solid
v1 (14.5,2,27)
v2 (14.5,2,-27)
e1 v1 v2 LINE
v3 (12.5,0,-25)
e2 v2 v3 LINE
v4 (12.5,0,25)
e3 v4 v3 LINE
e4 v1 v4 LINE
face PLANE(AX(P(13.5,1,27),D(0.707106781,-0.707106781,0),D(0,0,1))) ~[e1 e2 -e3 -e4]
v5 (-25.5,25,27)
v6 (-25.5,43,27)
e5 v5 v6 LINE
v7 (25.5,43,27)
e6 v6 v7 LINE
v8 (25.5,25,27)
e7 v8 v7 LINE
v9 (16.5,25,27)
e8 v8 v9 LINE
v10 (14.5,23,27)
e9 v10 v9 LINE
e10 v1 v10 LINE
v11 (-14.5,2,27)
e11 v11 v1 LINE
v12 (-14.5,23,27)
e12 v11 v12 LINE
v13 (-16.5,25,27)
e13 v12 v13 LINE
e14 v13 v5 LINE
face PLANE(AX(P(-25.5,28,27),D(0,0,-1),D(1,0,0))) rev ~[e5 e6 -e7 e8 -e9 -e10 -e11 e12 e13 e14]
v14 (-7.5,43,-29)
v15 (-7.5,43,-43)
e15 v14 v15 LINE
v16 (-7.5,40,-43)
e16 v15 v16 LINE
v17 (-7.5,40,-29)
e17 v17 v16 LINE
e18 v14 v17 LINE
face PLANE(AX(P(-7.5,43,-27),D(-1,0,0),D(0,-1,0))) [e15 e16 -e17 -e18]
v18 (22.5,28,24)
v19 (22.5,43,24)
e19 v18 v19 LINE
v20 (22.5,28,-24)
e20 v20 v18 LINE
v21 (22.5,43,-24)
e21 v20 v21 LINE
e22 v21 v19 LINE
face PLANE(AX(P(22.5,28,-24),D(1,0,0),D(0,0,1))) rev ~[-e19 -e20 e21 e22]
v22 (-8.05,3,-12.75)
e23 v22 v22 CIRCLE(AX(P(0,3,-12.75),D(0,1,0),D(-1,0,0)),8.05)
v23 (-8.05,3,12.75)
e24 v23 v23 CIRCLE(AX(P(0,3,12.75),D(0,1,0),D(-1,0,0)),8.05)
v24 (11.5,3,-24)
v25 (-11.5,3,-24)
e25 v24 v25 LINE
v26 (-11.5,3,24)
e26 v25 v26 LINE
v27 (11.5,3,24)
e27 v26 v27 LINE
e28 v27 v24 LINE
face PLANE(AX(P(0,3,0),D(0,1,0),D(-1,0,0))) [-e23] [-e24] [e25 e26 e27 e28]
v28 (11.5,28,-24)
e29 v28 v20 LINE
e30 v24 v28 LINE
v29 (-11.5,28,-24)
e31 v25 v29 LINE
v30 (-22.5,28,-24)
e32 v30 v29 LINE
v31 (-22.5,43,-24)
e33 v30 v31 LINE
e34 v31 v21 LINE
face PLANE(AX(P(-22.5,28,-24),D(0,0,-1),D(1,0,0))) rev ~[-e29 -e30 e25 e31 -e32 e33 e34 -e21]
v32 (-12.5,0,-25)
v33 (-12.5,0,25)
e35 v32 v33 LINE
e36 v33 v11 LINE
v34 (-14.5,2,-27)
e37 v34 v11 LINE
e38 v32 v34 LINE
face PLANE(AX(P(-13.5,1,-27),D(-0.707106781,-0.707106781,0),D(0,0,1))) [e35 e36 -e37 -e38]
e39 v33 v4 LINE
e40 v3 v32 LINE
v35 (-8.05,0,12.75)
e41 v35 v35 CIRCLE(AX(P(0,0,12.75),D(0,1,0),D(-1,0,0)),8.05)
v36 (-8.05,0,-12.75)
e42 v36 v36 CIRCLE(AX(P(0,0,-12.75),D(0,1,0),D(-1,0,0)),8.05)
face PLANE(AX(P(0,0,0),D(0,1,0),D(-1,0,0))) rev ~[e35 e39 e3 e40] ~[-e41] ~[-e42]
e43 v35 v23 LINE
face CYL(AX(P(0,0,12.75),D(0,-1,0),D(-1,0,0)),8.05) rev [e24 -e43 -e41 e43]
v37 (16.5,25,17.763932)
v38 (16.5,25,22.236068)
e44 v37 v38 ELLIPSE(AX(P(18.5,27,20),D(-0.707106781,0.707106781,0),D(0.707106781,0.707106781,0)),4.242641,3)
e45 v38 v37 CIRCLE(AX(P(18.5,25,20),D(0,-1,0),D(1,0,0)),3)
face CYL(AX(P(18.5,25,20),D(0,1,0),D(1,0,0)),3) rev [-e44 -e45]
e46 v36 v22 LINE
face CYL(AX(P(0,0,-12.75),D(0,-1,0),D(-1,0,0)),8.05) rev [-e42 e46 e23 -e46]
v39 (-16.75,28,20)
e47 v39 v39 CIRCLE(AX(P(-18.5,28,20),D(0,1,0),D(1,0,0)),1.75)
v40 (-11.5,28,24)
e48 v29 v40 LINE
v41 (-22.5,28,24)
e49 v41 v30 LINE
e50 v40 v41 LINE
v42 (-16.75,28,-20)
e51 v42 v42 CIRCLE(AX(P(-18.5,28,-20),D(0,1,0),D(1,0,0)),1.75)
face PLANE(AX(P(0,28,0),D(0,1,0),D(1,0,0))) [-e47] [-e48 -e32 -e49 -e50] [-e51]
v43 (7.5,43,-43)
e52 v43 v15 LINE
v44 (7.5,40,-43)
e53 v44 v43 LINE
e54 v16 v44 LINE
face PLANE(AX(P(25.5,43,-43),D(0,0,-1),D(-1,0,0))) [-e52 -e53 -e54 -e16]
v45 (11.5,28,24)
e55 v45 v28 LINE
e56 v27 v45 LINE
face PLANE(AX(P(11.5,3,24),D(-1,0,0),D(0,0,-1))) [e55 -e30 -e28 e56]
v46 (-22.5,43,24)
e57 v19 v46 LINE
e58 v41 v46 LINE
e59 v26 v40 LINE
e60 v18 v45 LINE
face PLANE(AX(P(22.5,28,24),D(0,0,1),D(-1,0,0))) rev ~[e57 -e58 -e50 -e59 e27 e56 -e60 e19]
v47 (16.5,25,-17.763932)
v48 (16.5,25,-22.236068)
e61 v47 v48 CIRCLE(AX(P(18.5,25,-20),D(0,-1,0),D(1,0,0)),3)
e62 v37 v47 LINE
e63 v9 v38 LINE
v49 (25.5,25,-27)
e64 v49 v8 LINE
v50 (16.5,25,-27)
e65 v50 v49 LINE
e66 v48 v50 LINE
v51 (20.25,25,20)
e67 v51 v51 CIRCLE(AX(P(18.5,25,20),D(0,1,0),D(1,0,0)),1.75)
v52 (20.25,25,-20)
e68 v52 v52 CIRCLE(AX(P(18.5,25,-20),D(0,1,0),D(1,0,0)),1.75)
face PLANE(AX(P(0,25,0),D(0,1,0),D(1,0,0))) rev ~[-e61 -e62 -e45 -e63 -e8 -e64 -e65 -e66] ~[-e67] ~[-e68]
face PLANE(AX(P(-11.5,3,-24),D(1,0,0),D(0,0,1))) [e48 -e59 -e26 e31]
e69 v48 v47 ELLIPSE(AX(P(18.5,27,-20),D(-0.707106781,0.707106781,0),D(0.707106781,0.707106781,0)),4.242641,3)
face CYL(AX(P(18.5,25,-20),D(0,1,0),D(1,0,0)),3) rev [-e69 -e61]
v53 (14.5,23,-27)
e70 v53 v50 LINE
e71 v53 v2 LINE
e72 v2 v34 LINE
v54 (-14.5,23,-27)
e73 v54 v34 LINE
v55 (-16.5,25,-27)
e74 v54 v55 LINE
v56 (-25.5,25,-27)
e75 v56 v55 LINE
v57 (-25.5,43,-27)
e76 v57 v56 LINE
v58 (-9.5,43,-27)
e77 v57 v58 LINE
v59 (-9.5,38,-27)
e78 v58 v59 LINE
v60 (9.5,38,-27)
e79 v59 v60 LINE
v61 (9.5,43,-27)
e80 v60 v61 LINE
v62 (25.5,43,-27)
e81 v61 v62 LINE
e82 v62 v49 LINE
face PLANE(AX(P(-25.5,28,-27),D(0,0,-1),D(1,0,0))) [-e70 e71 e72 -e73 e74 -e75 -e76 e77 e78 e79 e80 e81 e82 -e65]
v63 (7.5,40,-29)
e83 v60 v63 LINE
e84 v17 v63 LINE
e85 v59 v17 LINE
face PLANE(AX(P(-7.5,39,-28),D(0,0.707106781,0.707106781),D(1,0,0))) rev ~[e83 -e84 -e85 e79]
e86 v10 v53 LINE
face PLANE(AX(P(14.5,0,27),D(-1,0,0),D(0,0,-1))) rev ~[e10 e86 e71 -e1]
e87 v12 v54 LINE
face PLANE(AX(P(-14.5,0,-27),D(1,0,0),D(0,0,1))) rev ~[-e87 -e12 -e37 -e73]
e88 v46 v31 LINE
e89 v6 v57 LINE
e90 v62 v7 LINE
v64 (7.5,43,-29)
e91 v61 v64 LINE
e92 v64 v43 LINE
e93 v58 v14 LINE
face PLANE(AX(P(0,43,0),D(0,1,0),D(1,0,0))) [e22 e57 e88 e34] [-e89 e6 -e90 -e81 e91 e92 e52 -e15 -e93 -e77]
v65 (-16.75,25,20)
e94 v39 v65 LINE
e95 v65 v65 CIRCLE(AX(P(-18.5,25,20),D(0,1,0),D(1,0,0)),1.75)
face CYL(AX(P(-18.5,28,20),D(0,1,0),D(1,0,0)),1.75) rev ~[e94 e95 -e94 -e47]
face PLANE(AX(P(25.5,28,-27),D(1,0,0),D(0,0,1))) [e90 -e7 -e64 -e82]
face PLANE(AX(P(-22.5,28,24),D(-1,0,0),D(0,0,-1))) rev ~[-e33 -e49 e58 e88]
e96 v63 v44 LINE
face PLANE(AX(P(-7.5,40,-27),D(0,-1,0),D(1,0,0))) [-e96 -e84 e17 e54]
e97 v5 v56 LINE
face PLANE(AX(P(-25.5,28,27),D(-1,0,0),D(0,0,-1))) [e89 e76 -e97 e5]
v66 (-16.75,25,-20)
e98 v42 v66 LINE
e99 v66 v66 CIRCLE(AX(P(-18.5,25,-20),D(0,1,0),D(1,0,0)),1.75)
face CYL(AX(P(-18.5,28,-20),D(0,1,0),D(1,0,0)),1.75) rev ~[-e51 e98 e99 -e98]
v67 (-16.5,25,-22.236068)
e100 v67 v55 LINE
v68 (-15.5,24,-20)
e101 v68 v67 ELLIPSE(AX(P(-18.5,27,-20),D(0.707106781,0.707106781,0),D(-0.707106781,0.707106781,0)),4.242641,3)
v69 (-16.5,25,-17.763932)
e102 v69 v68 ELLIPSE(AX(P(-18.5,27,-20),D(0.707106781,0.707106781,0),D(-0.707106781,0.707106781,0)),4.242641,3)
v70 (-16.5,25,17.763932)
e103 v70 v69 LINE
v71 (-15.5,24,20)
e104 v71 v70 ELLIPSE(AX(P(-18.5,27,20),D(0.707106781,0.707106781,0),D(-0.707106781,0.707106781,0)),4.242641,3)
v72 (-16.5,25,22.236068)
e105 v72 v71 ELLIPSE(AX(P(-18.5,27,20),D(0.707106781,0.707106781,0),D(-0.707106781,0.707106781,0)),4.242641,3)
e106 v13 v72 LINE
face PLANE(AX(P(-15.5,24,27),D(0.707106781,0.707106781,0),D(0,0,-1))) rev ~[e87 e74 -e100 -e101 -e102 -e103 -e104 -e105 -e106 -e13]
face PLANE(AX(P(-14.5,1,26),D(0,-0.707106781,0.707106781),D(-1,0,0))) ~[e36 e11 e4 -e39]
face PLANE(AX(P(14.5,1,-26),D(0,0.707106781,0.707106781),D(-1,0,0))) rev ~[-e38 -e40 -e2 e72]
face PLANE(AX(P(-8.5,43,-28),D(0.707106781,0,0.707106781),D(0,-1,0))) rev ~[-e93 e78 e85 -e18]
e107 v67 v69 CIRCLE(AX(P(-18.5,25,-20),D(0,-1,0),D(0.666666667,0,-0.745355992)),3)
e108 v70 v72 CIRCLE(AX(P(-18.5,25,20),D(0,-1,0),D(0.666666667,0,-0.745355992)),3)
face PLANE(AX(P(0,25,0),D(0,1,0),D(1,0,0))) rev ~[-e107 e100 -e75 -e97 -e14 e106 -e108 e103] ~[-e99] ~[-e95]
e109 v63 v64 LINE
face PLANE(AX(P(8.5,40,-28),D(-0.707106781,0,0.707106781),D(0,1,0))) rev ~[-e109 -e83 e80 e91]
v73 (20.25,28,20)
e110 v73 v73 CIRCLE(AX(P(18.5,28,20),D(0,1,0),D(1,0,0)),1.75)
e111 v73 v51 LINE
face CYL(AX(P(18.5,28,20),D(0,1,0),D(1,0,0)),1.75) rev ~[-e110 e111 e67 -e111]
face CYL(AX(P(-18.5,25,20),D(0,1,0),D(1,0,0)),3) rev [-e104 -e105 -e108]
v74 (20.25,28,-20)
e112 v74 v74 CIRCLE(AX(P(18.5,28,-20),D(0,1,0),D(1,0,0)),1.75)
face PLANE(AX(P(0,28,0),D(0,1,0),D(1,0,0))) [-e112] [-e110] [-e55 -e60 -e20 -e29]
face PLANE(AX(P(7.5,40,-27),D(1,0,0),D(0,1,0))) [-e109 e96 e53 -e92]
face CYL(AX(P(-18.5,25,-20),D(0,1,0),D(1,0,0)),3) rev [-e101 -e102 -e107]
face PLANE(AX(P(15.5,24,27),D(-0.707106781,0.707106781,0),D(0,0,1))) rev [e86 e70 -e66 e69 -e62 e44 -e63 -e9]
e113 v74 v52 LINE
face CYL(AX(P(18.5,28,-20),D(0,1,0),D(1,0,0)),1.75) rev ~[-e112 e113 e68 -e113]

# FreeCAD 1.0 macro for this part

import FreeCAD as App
import Part
import Sketcher
from FreeCAD import Vector
Q = App.Units.Quantity


def edges_at(feature, points):
    """Names of the edges that pass closest to the given points."""
    edges = feature.Shape.Edges
    near = lambda p: min(range(len(edges)), key=lambda i: edges[i].distToShape(Part.Vertex(*p))[0])
    return sorted({f"Edge{near(p) + 1}" for p in points})

doc = App.newDocument("Part")
body = doc.addObject("PartDesign::Body", "Body")

# Sketch on XZ plane
sketch1 = doc.addObject("Sketcher::SketchObject", "Sketch")
body.addObject(sketch1)
sketch1.AttachmentSupport = (doc.XZ_Plane, [""])
sketch1.MapMode = "FlatFace"
sketch1.addGeometry(Part.LineSegment(Vector(-14, -27, 0), Vector(-14, 27, 0)), False)
sketch1.addGeometry(Part.LineSegment(Vector(-14, 27, 0), Vector(14, 27, 0)), False)
sketch1.addGeometry(Part.LineSegment(Vector(14, 27, 0), Vector(14, -27, 0)), False)
sketch1.addGeometry(Part.LineSegment(Vector(14, -27, 0), Vector(-14, -27, 0)), False)
sketch1.addGeometry(Part.Circle(Vector(0, -13, 0), Vector(0, 0, 1), 8), False)
sketch1.addGeometry(Part.Circle(Vector(0, 13, 0), Vector(0, 0, 1), 8), False)
sketch1.addConstraint(Sketcher.Constraint("Coincident", 0, 2, 1, 1))
sketch1.addConstraint(Sketcher.Constraint("Coincident", 1, 2, 2, 1))
sketch1.addConstraint(Sketcher.Constraint("Coincident", 2, 2, 3, 1))
sketch1.addConstraint(Sketcher.Constraint("Coincident", 3, 2, 0, 1))
sketch1.addConstraint(Sketcher.Constraint("Vertical", 0))
sketch1.addConstraint(Sketcher.Constraint("Horizontal", 1))
sketch1.addConstraint(Sketcher.Constraint("Vertical", 2))
sketch1.addConstraint(Sketcher.Constraint("Horizontal", 3))
sketch1.addConstraint(Sketcher.Constraint("Equal", 4, 5))
sketch1.addConstraint(Sketcher.Constraint("Symmetric", 4, 3, 5, 3, -1, 1))
sketch1.addConstraint(Sketcher.Constraint("Symmetric", 0, 2, 2, 2, -1, 1))
sketch1.addConstraint(Sketcher.Constraint("PointOnObject", 4, 3, -2))
sketch1.addConstraint(Sketcher.Constraint("Diameter", 4, Q("16.1 mm")))
sketch1.addConstraint(Sketcher.Constraint("DistanceX", 1, 1, 1, 2, Q("29 mm")))
sketch1.addConstraint(Sketcher.Constraint("DistanceY", 0, 1, 0, 2, Q("54 mm")))
sketch1.addConstraint(Sketcher.Constraint("DistanceY", 4, 3, 5, 3, Q("25.5 mm")))
pad1 = doc.addObject("PartDesign::Pad", "Pad")
body.addObject(pad1)
pad1.Profile = sketch1
pad1.Length = 3
pad1.Reversed = True

# Sketch on XZ plane
sketch2 = doc.addObject("Sketcher::SketchObject", "Sketch001")
body.addObject(sketch2)
sketch2.AttachmentSupport = (doc.XZ_Plane, [""])
sketch2.MapMode = "FlatFace"
sketch2.AttachmentOffset = App.Placement(Vector(0, 0, -3), App.Rotation())
sketch2.addGeometry(Part.LineSegment(Vector(-14, 27, 0), Vector(14, 27, 0)), False)
sketch2.addGeometry(Part.LineSegment(Vector(14, 27, 0), Vector(14, -27, 0)), False)
sketch2.addGeometry(Part.LineSegment(Vector(14, -27, 0), Vector(-14, -27, 0)), False)
sketch2.addGeometry(Part.LineSegment(Vector(-14, -27, 0), Vector(-14, 27, 0)), False)
sketch2.addGeometry(Part.LineSegment(Vector(12, 24, 0), Vector(-12, 24, 0)), False)
sketch2.addGeometry(Part.LineSegment(Vector(-12, 24, 0), Vector(-12, -24, 0)), False)
sketch2.addGeometry(Part.LineSegment(Vector(-12, -24, 0), Vector(12, -24, 0)), False)
sketch2.addGeometry(Part.LineSegment(Vector(12, -24, 0), Vector(12, 24, 0)), False)
sketch2.addConstraint(Sketcher.Constraint("Coincident", 0, 2, 1, 1))
sketch2.addConstraint(Sketcher.Constraint("Coincident", 1, 2, 2, 1))
sketch2.addConstraint(Sketcher.Constraint("Coincident", 2, 2, 3, 1))
sketch2.addConstraint(Sketcher.Constraint("Coincident", 3, 2, 0, 1))
sketch2.addConstraint(Sketcher.Constraint("Coincident", 4, 2, 5, 1))
sketch2.addConstraint(Sketcher.Constraint("Coincident", 5, 2, 6, 1))
sketch2.addConstraint(Sketcher.Constraint("Coincident", 6, 2, 7, 1))
sketch2.addConstraint(Sketcher.Constraint("Coincident", 7, 2, 4, 1))
sketch2.addConstraint(Sketcher.Constraint("Horizontal", 0))
sketch2.addConstraint(Sketcher.Constraint("Vertical", 1))
sketch2.addConstraint(Sketcher.Constraint("Horizontal", 2))
sketch2.addConstraint(Sketcher.Constraint("Vertical", 3))
sketch2.addConstraint(Sketcher.Constraint("Horizontal", 4))
sketch2.addConstraint(Sketcher.Constraint("Vertical", 5))
sketch2.addConstraint(Sketcher.Constraint("Horizontal", 6))
sketch2.addConstraint(Sketcher.Constraint("Vertical", 7))
sketch2.addConstraint(Sketcher.Constraint("Symmetric", 0, 2, 2, 2, -1, 1))
sketch2.addConstraint(Sketcher.Constraint("Symmetric", 4, 2, 6, 2, -1, 1))
sketch2.addConstraint(Sketcher.Constraint("DistanceX", 4, 2, 4, 1, Q("23 mm")))
sketch2.addConstraint(Sketcher.Constraint("DistanceY", 5, 2, 5, 1, Q("48 mm")))
sketch2.addConstraint(Sketcher.Constraint("DistanceX", 0, 1, 0, 2, Q("29 mm")))
sketch2.addConstraint(Sketcher.Constraint("DistanceY", 1, 2, 1, 1, Q("54 mm")))
pad2 = doc.addObject("PartDesign::Pad", "Pad001")
body.addObject(pad2)
pad2.Profile = sketch2
pad2.Length = 25
pad2.Reversed = True

# Sketch on XZ plane
sketch3 = doc.addObject("Sketcher::SketchObject", "Sketch002")
body.addObject(sketch3)
sketch3.AttachmentSupport = (doc.XZ_Plane, [""])
sketch3.MapMode = "FlatFace"
sketch3.AttachmentOffset = App.Placement(Vector(0, 0, -28), App.Rotation())
sketch3.addGeometry(Part.LineSegment(Vector(-14, -27, 0), Vector(-26, -27, 0)), False)
sketch3.addGeometry(Part.LineSegment(Vector(-26, -27, 0), Vector(-26, 27, 0)), False)
sketch3.addGeometry(Part.LineSegment(Vector(-26, 27, 0), Vector(-14, 27, 0)), False)
sketch3.addGeometry(Part.LineSegment(Vector(-14, 27, 0), Vector(-14, -27, 0)), False)
sketch3.addGeometry(Part.LineSegment(Vector(26, -27, 0), Vector(14, -27, 0)), False)
sketch3.addGeometry(Part.LineSegment(Vector(14, -27, 0), Vector(14, 27, 0)), False)
sketch3.addGeometry(Part.LineSegment(Vector(14, 27, 0), Vector(26, 27, 0)), False)
sketch3.addGeometry(Part.LineSegment(Vector(26, 27, 0), Vector(26, -27, 0)), False)
sketch3.addConstraint(Sketcher.Constraint("Coincident", 0, 2, 1, 1))
sketch3.addConstraint(Sketcher.Constraint("Coincident", 1, 2, 2, 1))
sketch3.addConstraint(Sketcher.Constraint("Coincident", 2, 2, 3, 1))
sketch3.addConstraint(Sketcher.Constraint("Coincident", 3, 2, 0, 1))
sketch3.addConstraint(Sketcher.Constraint("Coincident", 4, 2, 5, 1))
sketch3.addConstraint(Sketcher.Constraint("Coincident", 5, 2, 6, 1))
sketch3.addConstraint(Sketcher.Constraint("Coincident", 6, 2, 7, 1))
sketch3.addConstraint(Sketcher.Constraint("Coincident", 7, 2, 4, 1))
sketch3.addConstraint(Sketcher.Constraint("Horizontal", 0))
sketch3.addConstraint(Sketcher.Constraint("Vertical", 1))
sketch3.addConstraint(Sketcher.Constraint("Horizontal", 2))
sketch3.addConstraint(Sketcher.Constraint("Vertical", 3))
sketch3.addConstraint(Sketcher.Constraint("Horizontal", 4))
sketch3.addConstraint(Sketcher.Constraint("Vertical", 5))
sketch3.addConstraint(Sketcher.Constraint("Horizontal", 6))
sketch3.addConstraint(Sketcher.Constraint("Vertical", 7))
sketch3.addConstraint(Sketcher.Constraint("Symmetric", 2, 2, 4, 2, -1, 1))
sketch3.addConstraint(Sketcher.Constraint("Symmetric", 0, 2, 6, 2, -1, 1))
sketch3.addConstraint(Sketcher.Constraint("Horizontal", 3, 2, 4, 2))
sketch3.addConstraint(Sketcher.Constraint("DistanceX", 1, 2, 6, 2, Q("51 mm")))
sketch3.addConstraint(Sketcher.Constraint("DistanceX", 0, 2, 0, 1, Q("11 mm")))
sketch3.addConstraint(Sketcher.Constraint("DistanceY", 1, 1, 1, 2, Q("54 mm")))
pad3 = doc.addObject("PartDesign::Pad", "Pad002")
body.addObject(pad3)
pad3.Profile = sketch3
pad3.Length = 3

# Sketch on XZ plane
sketch4 = doc.addObject("Sketcher::SketchObject", "Sketch003")
body.addObject(sketch4)
sketch4.AttachmentSupport = (doc.XZ_Plane, [""])
sketch4.MapMode = "FlatFace"
sketch4.AttachmentOffset = App.Placement(Vector(0, 0, -28), App.Rotation())
sketch4.addGeometry(Part.LineSegment(Vector(-26, -27, 0), Vector(-26, 27, 0)), False)
sketch4.addGeometry(Part.LineSegment(Vector(-26, 27, 0), Vector(26, 27, 0)), False)
sketch4.addGeometry(Part.LineSegment(Vector(26, 27, 0), Vector(26, -27, 0)), False)
sketch4.addGeometry(Part.LineSegment(Vector(26, -27, 0), Vector(-26, -27, 0)), False)
sketch4.addGeometry(Part.LineSegment(Vector(-22, 24, 0), Vector(-22, -24, 0)), False)
sketch4.addGeometry(Part.LineSegment(Vector(-22, -24, 0), Vector(22, -24, 0)), False)
sketch4.addGeometry(Part.LineSegment(Vector(22, -24, 0), Vector(22, 24, 0)), False)
sketch4.addGeometry(Part.LineSegment(Vector(22, 24, 0), Vector(-22, 24, 0)), False)
sketch4.addConstraint(Sketcher.Constraint("Coincident", 0, 2, 1, 1))
sketch4.addConstraint(Sketcher.Constraint("Coincident", 1, 2, 2, 1))
sketch4.addConstraint(Sketcher.Constraint("Coincident", 2, 2, 3, 1))
sketch4.addConstraint(Sketcher.Constraint("Coincident", 3, 2, 0, 1))
sketch4.addConstraint(Sketcher.Constraint("Coincident", 4, 2, 5, 1))
sketch4.addConstraint(Sketcher.Constraint("Coincident", 5, 2, 6, 1))
sketch4.addConstraint(Sketcher.Constraint("Coincident", 6, 2, 7, 1))
sketch4.addConstraint(Sketcher.Constraint("Coincident", 7, 2, 4, 1))
sketch4.addConstraint(Sketcher.Constraint("Vertical", 0))
sketch4.addConstraint(Sketcher.Constraint("Horizontal", 1))
sketch4.addConstraint(Sketcher.Constraint("Vertical", 2))
sketch4.addConstraint(Sketcher.Constraint("Horizontal", 3))
sketch4.addConstraint(Sketcher.Constraint("Vertical", 4))
sketch4.addConstraint(Sketcher.Constraint("Horizontal", 5))
sketch4.addConstraint(Sketcher.Constraint("Vertical", 6))
sketch4.addConstraint(Sketcher.Constraint("Horizontal", 7))
sketch4.addConstraint(Sketcher.Constraint("Symmetric", 0, 2, 2, 2, -1, 1))
sketch4.addConstraint(Sketcher.Constraint("Symmetric", 4, 2, 6, 2, -1, 1))
sketch4.addConstraint(Sketcher.Constraint("DistanceX", 5, 1, 5, 2, Q("45 mm")))
sketch4.addConstraint(Sketcher.Constraint("DistanceY", 4, 2, 4, 1, Q("48 mm")))
sketch4.addConstraint(Sketcher.Constraint("DistanceX", 4, 2, 2, 2, Q("48 mm")))
sketch4.addConstraint(Sketcher.Constraint("DistanceY", 0, 1, 0, 2, Q("54 mm")))
pad4 = doc.addObject("PartDesign::Pad", "Pad003")
body.addObject(pad4)
pad4.Profile = sketch4
pad4.Length = 15
pad4.Reversed = True

# Sketch on XZ plane
sketch5 = doc.addObject("Sketcher::SketchObject", "Sketch004")
body.addObject(sketch5)
sketch5.AttachmentSupport = (doc.XZ_Plane, [""])
sketch5.MapMode = "FlatFace"
sketch5.AttachmentOffset = App.Placement(Vector(0, 0, -28), App.Rotation())
sketch5.addGeometry(Part.Circle(Vector(18.5, -20, 0), Vector(0, 0, 1), 1.8), False)
sketch5.addGeometry(Part.Circle(Vector(18.5, 20, 0), Vector(0, 0, 1), 1.8), False)
sketch5.addGeometry(Part.Circle(Vector(-18.5, -20, 0), Vector(0, 0, 1), 1.8), False)
sketch5.addGeometry(Part.Circle(Vector(-18.5, 20, 0), Vector(0, 0, 1), 1.8), False)
sketch5.addConstraint(Sketcher.Constraint("Equal", 0, 1))
sketch5.addConstraint(Sketcher.Constraint("Equal", 1, 2))
sketch5.addConstraint(Sketcher.Constraint("Equal", 2, 3))
sketch5.addConstraint(Sketcher.Constraint("Symmetric", 1, 3, 2, 3, -1, 1))
sketch5.addConstraint(Sketcher.Constraint("Symmetric", 0, 3, 3, 3, -1, 1))
sketch5.addConstraint(Sketcher.Constraint("Symmetric", 0, 3, 2, 3, -2))
sketch5.addConstraint(Sketcher.Constraint("Diameter", 0, Q("3.5 mm")))
sketch5.addConstraint(Sketcher.Constraint("DistanceY", 0, 3, 1, 3, Q("40 mm")))
sketch5.addConstraint(Sketcher.Constraint("DistanceX", 2, 3, 0, 3, Q("37 mm")))
pocket1 = doc.addObject("PartDesign::Pocket", "Pocket")
body.addObject(pocket1)
pocket1.Profile = sketch5
pocket1.Length = 10
pocket1.Reversed = True
doc.recompute()

chamfer = doc.addObject("PartDesign::Chamfer", "Chamfer")
body.addObject(chamfer)
chamfer.Base = (pocket1, edges_at(pocket1, [
    (-14.5, 0, 0),
    (14.5, 0, 0),
    (0, 0, 27),
    (0, 0, -27),
]))
chamfer.Size = 2
doc.recompute()

chamfer2 = doc.addObject("PartDesign::Chamfer", "Chamfer001")
body.addObject(chamfer2)
chamfer2.Base = (chamfer, edges_at(chamfer, [(-14.5, 25, 0), (14.5, 25, 0)]))
chamfer2.Size = 2

# Sketch on XZ plane
sketch6 = doc.addObject("Sketcher::SketchObject", "Sketch005")
body.addObject(sketch6)
sketch6.AttachmentSupport = (doc.XZ_Plane, [""])
sketch6.MapMode = "FlatFace"
sketch6.AttachmentOffset = App.Placement(Vector(0, 0, -25), App.Rotation())
sketch6.addGeometry(Part.Circle(Vector(-18.5, 20, 0), Vector(0, 0, 1), 3), False)
sketch6.addGeometry(Part.Circle(Vector(-18.5, -20, 0), Vector(0, 0, 1), 3), False)
sketch6.addGeometry(Part.Circle(Vector(18.5, -20, 0), Vector(0, 0, 1), 3), False)
sketch6.addGeometry(Part.Circle(Vector(18.5, 20, 0), Vector(0, 0, 1), 3), False)
sketch6.addConstraint(Sketcher.Constraint("Equal", 0, 1))
sketch6.addConstraint(Sketcher.Constraint("Equal", 1, 2))
sketch6.addConstraint(Sketcher.Constraint("Equal", 2, 3))
sketch6.addConstraint(Sketcher.Constraint("Symmetric", 0, 3, 2, 3, -1, 1))
sketch6.addConstraint(Sketcher.Constraint("Symmetric", 1, 3, 3, 3, -1, 1))
sketch6.addConstraint(Sketcher.Constraint("Symmetric", 1, 3, 2, 3, -2))
sketch6.addConstraint(Sketcher.Constraint("Diameter", 0, Q("6 mm")))
sketch6.addConstraint(Sketcher.Constraint("DistanceY", 1, 3, 0, 3, Q("40 mm")))
sketch6.addConstraint(Sketcher.Constraint("DistanceX", 1, 3, 2, 3, Q("37 mm")))
pocket2 = doc.addObject("PartDesign::Pocket", "Pocket001")
body.addObject(pocket2)
pocket2.Profile = sketch6
pocket2.Length = 10
pocket2.Reversed = True

# Sketch on XY plane
sketch7 = doc.addObject("Sketcher::SketchObject", "Sketch006")
body.addObject(sketch7)
sketch7.AttachmentSupport = (doc.XY_Plane, [""])
sketch7.MapMode = "FlatFace"
sketch7.AttachmentOffset = App.Placement(Vector(0, 0, -27), App.Rotation())
sketch7.addGeometry(Part.LineSegment(Vector(-7.5, 40, 0), Vector(-7.5, 43, 0)), False)
sketch7.addGeometry(Part.LineSegment(Vector(-7.5, 43, 0), Vector(7.5, 43, 0)), False)
sketch7.addGeometry(Part.LineSegment(Vector(7.5, 43, 0), Vector(7.5, 40, 0)), False)
sketch7.addGeometry(Part.LineSegment(Vector(7.5, 40, 0), Vector(-7.5, 40, 0)), False)
sketch7.addConstraint(Sketcher.Constraint("Coincident", 0, 2, 1, 1))
sketch7.addConstraint(Sketcher.Constraint("Coincident", 1, 2, 2, 1))
sketch7.addConstraint(Sketcher.Constraint("Coincident", 2, 2, 3, 1))
sketch7.addConstraint(Sketcher.Constraint("Coincident", 3, 2, 0, 1))
sketch7.addConstraint(Sketcher.Constraint("Vertical", 0))
sketch7.addConstraint(Sketcher.Constraint("Horizontal", 1))
sketch7.addConstraint(Sketcher.Constraint("Vertical", 2))
sketch7.addConstraint(Sketcher.Constraint("Horizontal", 3))
sketch7.addConstraint(Sketcher.Constraint("DistanceX", 1, 1, 1, 2, Q("15 mm")))
sketch7.addConstraint(Sketcher.Constraint("DistanceY", 0, 1, 0, 2, Q("3 mm")))
sketch7.addConstraint(Sketcher.Constraint("DistanceY", -1, 1, 0, 2, Q("43 mm")))
sketch7.addConstraint(Sketcher.Constraint("DistanceX", 0, 2, -1, 1, Q("7.5 mm")))
pad5 = doc.addObject("PartDesign::Pad", "Pad004")
body.addObject(pad5)
pad5.Profile = sketch7
pad5.Length = 16
pad5.Reversed = True
doc.recompute()

chamfer3 = doc.addObject("PartDesign::Chamfer", "Chamfer002")
body.addObject(chamfer3)
chamfer3.Base = (pad5, edges_at(pad5, [(0, 40, -27), (-7.5, 41.5, -27), (7.5, 41.5, -27)]))
chamfer3.Size = 2

doc.recompute()
